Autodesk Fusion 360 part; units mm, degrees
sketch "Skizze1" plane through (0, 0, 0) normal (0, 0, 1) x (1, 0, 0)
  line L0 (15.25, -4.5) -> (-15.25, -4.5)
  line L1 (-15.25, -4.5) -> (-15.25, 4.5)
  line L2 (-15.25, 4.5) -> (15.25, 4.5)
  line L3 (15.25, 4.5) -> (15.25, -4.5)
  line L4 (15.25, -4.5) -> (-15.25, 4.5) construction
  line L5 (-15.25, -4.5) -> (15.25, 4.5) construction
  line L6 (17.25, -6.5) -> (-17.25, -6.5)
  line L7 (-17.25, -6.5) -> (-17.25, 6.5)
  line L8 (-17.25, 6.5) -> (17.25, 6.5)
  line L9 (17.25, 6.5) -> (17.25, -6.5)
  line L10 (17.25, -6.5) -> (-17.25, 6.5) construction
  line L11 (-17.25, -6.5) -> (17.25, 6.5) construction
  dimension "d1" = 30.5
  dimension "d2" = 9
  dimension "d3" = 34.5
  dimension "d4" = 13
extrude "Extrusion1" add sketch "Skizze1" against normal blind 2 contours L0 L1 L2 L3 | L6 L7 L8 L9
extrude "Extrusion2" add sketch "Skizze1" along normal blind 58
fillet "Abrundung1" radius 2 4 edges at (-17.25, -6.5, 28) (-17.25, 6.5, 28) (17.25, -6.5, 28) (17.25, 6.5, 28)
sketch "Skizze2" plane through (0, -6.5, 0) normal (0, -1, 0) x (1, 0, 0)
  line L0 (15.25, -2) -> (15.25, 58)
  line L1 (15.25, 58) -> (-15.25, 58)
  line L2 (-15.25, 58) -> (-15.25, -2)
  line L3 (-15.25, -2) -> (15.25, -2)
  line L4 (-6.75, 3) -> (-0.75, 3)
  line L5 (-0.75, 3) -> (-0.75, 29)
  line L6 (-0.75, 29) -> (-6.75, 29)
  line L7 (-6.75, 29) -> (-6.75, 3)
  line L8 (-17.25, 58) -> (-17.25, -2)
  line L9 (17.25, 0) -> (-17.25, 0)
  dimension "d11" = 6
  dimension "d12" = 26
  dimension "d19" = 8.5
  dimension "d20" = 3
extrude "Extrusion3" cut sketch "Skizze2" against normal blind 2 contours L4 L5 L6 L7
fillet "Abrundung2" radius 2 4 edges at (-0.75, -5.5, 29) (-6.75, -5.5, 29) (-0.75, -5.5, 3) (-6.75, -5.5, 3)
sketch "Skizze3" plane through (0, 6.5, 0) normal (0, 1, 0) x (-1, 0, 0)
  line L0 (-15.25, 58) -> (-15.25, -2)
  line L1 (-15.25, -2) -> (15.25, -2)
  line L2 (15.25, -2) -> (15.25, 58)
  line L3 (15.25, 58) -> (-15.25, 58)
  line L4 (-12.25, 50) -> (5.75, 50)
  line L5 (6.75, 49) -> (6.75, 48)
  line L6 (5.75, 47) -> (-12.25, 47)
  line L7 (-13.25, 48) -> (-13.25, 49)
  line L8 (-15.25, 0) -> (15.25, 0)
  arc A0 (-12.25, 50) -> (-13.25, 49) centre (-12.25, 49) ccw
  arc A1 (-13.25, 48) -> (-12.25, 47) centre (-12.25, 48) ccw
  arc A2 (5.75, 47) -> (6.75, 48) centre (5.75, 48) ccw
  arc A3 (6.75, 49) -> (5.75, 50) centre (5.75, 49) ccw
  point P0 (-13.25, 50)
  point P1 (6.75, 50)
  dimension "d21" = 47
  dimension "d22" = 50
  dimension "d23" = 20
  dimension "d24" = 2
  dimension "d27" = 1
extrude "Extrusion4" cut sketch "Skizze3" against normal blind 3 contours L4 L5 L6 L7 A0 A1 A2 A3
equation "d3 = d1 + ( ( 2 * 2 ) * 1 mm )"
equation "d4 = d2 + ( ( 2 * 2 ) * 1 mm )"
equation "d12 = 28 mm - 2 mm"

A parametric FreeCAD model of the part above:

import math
import FreeCAD as App
import Part
import Sketcher


def edges_at(feature, points):
    """Names of the edges that pass closest to the given points."""
    edges = feature.Shape.Edges
    near = lambda p: min(range(len(edges)), key=lambda i: edges[i].distToShape(Part.Vertex(*p))[0])
    return sorted({f"Edge{near(p) + 1}" for p in points})


def add_polygon(sketch, points):
    """Adds a closed chain of lines whose ends are joined by coincident constraints."""
    first, n = sketch.GeometryCount, len(points)
    for a, b in zip(points, points[1:] + points[:1]):
        sketch.addGeometry(Part.LineSegment(App.Vector(*a, 0), App.Vector(*b, 0)), False)
    for i in range(n):
        sketch.addConstraint(Sketcher.Constraint("Coincident", first + i, 2, first + (i + 1) % n, 1))

doc = App.newDocument("Part")
body = doc.addObject("PartDesign::Body", "Body")

# Sketch on XY plane
sketch1 = body.newObject("Sketcher::SketchObject", "Sketch")
sketch1.AttachmentSupport = (doc.getObject("XY_Plane"), [""])
sketch1.MapMode = "FlatFace"
add_polygon(sketch1, [(-17.25, -6.5), (17.25, -6.5), (17.25, 6.5), (-17.25, 6.5)])  # lines 0-3
sketch1.addConstraint([
    Sketcher.Constraint("Horizontal", 0),
    Sketcher.Constraint("Vertical", 1),
    Sketcher.Constraint("Horizontal", 2),
    Sketcher.Constraint("Vertical", 3),
    Sketcher.Constraint("Symmetric", 0, 2, 2, 2, -1, 1),
    Sketcher.Constraint("DistanceY", 1, 1, 1, 2, 13.0),
    Sketcher.Constraint("DistanceX", 0, 1, 0, 2, 34.5),
])
pad1 = body.newObject("PartDesign::Pad", "Pad")
pad1.Profile = sketch1
pad1.Length = 2
pad1.Reversed = True

# Sketch on XY plane
sketch2 = body.newObject("Sketcher::SketchObject", "Sketch001")
sketch2.AttachmentSupport = (doc.getObject("XY_Plane"), [""])
sketch2.MapMode = "FlatFace"
add_polygon(sketch2, [(-17.25, -6.5), (17.25, -6.5), (17.25, 6.5), (-17.25, 6.5)])  # lines 0-3
add_polygon(sketch2, [(15.25, 4.5), (15.25, -4.5), (-15.25, -4.5), (-15.25, 4.5)])  # lines 4-7
sketch2.addConstraint([
    Sketcher.Constraint("Horizontal", 0),
    Sketcher.Constraint("Vertical", 1),
    Sketcher.Constraint("Horizontal", 2),
    Sketcher.Constraint("Vertical", 3),
    Sketcher.Constraint("Vertical", 4),
    Sketcher.Constraint("Horizontal", 5),
    Sketcher.Constraint("Vertical", 6),
    Sketcher.Constraint("Horizontal", 7),
    Sketcher.Constraint("Symmetric", 0, 2, 2, 2, -1, 1),
    Sketcher.Constraint("Symmetric", 4, 2, 6, 2, -1, 1),
    Sketcher.Constraint("DistanceY", 1, 1, 1, 2, 13.0),
    Sketcher.Constraint("DistanceY", 4, 2, 4, 1, 9.0),
    Sketcher.Constraint("DistanceX", 0, 1, 0, 2, 34.5),
    Sketcher.Constraint("DistanceX", 5, 2, 5, 1, 30.5),
])
pad2 = body.newObject("PartDesign::Pad", "Pad001")
pad2.Profile = sketch2
pad2.Length = 58
doc.recompute()

fillet = body.newObject("PartDesign::Fillet", "Fillet")
fillet.Base = (pad2, edges_at(pad2, [
    (-17.25, -6.5, 28),
    (-17.25, 6.5, 28),
    (17.25, -6.5, 28),
    (17.25, 6.5, 28),
]))
fillet.Radius = 2

# Sketch on XZ plane
sketch3 = body.newObject("Sketcher::SketchObject", "Sketch002")
sketch3.AttachmentSupport = (doc.getObject("XZ_Plane"), [""])
sketch3.MapMode = "FlatFace"
sketch3.AttachmentOffset = App.Placement(App.Vector(0, 0, 6.5), App.Rotation())
add_polygon(sketch3, [(-6.75, 29), (-6.75, 3), (-0.75, 3), (-0.75, 29)])  # lines 0-3
sketch3.addConstraint([
    Sketcher.Constraint("Vertical", 0),
    Sketcher.Constraint("Horizontal", 1),
    Sketcher.Constraint("Vertical", 2),
    Sketcher.Constraint("Horizontal", 3),
    Sketcher.Constraint("DistanceX", 1, 1, 1, 2, 6.0),
    Sketcher.Constraint("DistanceY", 0, 2, 0, 1, 26.0),
    Sketcher.Constraint("DistanceY", -1, 1, 0, 2, 3.0),
    Sketcher.Constraint("DistanceX", 0, 2, -1, 1, 6.75),
])
pocket1 = body.newObject("PartDesign::Pocket", "Pocket")
pocket1.Profile = sketch3
pocket1.Length = 2
doc.recompute()

fillet2 = body.newObject("PartDesign::Fillet", "Fillet001")
fillet2.Base = (pocket1, edges_at(pocket1, [
    (-0.75, -5.5, 29),
    (-6.75, -5.5, 29),
    (-0.75, -5.5, 3),
    (-6.75, -5.5, 3),
]))
fillet2.Radius = 2

# Sketch on XZ plane
sketch4 = body.newObject("Sketcher::SketchObject", "Sketch003")
sketch4.AttachmentSupport = (doc.getObject("XZ_Plane"), [""])
sketch4.MapMode = "FlatFace"
sketch4.AttachmentOffset = App.Placement(App.Vector(0, 0, -6.5), App.Rotation())
sketch4.addGeometry([
    Part.LineSegment(App.Vector(-5.75, 50, 0), App.Vector(12.25, 50, 0)),  # 0
    Part.ArcOfCircle(Part.Circle(App.Vector(12.25, 49, 0), App.Vector(0, 0, 1), 1), math.radians(0), math.radians(90)),  # 1
    Part.LineSegment(App.Vector(13.25, 49, 0), App.Vector(13.25, 48, 0)),  # 2
    Part.ArcOfCircle(Part.Circle(App.Vector(12.25, 48, 0), App.Vector(0, 0, 1), 1), math.radians(-90), math.radians(0)),  # 3
    Part.LineSegment(App.Vector(12.25, 47, 0), App.Vector(-5.75, 47, 0)),  # 4
    Part.ArcOfCircle(Part.Circle(App.Vector(-5.75, 48, 0), App.Vector(0, 0, 1), 1), math.radians(180), math.radians(270)),  # 5
    Part.LineSegment(App.Vector(-6.75, 48, 0), App.Vector(-6.75, 49, 0)),  # 6
    Part.ArcOfCircle(Part.Circle(App.Vector(-5.75, 49, 0), App.Vector(0, 0, 1), 1), math.radians(90), math.radians(180)),  # 7
], False)
sketch4.addConstraint([
    Sketcher.Constraint("Tangent", 0, 2, 1, 2),
    Sketcher.Constraint("Tangent", 1, 1, 2, 1),
    Sketcher.Constraint("Tangent", 2, 2, 3, 2),
    Sketcher.Constraint("Tangent", 3, 1, 4, 1),
    Sketcher.Constraint("Tangent", 4, 2, 5, 2),
    Sketcher.Constraint("Tangent", 5, 1, 6, 1),
    Sketcher.Constraint("Tangent", 6, 2, 7, 2),
    Sketcher.Constraint("Tangent", 7, 1, 0, 1),
    Sketcher.Constraint("Horizontal", 0),
    Sketcher.Constraint("Vertical", 2),
    Sketcher.Constraint("Horizontal", 4),
    Sketcher.Constraint("Vertical", 6),
    Sketcher.Constraint("Equal", 1, 3),
    Sketcher.Constraint("Equal", 3, 5),
    Sketcher.Constraint("Equal", 5, 7),
    Sketcher.Constraint("Radius", 1, 1.0),
    Sketcher.Constraint("DistanceY", 2, 2, 2, 1, 1.0),
    Sketcher.Constraint("DistanceY", -1, 1, 0, 2, 50.0),
    Sketcher.Constraint("DistanceX", 0, 1, 0, 2, 18.0),
    Sketcher.Constraint("DistanceX", -1, 1, 1, 3, 12.25),
])
pocket2 = body.newObject("PartDesign::Pocket", "Pocket001")
pocket2.Profile = sketch4
pocket2.Length = 3
pocket2.Reversed = True

doc.recompute()
